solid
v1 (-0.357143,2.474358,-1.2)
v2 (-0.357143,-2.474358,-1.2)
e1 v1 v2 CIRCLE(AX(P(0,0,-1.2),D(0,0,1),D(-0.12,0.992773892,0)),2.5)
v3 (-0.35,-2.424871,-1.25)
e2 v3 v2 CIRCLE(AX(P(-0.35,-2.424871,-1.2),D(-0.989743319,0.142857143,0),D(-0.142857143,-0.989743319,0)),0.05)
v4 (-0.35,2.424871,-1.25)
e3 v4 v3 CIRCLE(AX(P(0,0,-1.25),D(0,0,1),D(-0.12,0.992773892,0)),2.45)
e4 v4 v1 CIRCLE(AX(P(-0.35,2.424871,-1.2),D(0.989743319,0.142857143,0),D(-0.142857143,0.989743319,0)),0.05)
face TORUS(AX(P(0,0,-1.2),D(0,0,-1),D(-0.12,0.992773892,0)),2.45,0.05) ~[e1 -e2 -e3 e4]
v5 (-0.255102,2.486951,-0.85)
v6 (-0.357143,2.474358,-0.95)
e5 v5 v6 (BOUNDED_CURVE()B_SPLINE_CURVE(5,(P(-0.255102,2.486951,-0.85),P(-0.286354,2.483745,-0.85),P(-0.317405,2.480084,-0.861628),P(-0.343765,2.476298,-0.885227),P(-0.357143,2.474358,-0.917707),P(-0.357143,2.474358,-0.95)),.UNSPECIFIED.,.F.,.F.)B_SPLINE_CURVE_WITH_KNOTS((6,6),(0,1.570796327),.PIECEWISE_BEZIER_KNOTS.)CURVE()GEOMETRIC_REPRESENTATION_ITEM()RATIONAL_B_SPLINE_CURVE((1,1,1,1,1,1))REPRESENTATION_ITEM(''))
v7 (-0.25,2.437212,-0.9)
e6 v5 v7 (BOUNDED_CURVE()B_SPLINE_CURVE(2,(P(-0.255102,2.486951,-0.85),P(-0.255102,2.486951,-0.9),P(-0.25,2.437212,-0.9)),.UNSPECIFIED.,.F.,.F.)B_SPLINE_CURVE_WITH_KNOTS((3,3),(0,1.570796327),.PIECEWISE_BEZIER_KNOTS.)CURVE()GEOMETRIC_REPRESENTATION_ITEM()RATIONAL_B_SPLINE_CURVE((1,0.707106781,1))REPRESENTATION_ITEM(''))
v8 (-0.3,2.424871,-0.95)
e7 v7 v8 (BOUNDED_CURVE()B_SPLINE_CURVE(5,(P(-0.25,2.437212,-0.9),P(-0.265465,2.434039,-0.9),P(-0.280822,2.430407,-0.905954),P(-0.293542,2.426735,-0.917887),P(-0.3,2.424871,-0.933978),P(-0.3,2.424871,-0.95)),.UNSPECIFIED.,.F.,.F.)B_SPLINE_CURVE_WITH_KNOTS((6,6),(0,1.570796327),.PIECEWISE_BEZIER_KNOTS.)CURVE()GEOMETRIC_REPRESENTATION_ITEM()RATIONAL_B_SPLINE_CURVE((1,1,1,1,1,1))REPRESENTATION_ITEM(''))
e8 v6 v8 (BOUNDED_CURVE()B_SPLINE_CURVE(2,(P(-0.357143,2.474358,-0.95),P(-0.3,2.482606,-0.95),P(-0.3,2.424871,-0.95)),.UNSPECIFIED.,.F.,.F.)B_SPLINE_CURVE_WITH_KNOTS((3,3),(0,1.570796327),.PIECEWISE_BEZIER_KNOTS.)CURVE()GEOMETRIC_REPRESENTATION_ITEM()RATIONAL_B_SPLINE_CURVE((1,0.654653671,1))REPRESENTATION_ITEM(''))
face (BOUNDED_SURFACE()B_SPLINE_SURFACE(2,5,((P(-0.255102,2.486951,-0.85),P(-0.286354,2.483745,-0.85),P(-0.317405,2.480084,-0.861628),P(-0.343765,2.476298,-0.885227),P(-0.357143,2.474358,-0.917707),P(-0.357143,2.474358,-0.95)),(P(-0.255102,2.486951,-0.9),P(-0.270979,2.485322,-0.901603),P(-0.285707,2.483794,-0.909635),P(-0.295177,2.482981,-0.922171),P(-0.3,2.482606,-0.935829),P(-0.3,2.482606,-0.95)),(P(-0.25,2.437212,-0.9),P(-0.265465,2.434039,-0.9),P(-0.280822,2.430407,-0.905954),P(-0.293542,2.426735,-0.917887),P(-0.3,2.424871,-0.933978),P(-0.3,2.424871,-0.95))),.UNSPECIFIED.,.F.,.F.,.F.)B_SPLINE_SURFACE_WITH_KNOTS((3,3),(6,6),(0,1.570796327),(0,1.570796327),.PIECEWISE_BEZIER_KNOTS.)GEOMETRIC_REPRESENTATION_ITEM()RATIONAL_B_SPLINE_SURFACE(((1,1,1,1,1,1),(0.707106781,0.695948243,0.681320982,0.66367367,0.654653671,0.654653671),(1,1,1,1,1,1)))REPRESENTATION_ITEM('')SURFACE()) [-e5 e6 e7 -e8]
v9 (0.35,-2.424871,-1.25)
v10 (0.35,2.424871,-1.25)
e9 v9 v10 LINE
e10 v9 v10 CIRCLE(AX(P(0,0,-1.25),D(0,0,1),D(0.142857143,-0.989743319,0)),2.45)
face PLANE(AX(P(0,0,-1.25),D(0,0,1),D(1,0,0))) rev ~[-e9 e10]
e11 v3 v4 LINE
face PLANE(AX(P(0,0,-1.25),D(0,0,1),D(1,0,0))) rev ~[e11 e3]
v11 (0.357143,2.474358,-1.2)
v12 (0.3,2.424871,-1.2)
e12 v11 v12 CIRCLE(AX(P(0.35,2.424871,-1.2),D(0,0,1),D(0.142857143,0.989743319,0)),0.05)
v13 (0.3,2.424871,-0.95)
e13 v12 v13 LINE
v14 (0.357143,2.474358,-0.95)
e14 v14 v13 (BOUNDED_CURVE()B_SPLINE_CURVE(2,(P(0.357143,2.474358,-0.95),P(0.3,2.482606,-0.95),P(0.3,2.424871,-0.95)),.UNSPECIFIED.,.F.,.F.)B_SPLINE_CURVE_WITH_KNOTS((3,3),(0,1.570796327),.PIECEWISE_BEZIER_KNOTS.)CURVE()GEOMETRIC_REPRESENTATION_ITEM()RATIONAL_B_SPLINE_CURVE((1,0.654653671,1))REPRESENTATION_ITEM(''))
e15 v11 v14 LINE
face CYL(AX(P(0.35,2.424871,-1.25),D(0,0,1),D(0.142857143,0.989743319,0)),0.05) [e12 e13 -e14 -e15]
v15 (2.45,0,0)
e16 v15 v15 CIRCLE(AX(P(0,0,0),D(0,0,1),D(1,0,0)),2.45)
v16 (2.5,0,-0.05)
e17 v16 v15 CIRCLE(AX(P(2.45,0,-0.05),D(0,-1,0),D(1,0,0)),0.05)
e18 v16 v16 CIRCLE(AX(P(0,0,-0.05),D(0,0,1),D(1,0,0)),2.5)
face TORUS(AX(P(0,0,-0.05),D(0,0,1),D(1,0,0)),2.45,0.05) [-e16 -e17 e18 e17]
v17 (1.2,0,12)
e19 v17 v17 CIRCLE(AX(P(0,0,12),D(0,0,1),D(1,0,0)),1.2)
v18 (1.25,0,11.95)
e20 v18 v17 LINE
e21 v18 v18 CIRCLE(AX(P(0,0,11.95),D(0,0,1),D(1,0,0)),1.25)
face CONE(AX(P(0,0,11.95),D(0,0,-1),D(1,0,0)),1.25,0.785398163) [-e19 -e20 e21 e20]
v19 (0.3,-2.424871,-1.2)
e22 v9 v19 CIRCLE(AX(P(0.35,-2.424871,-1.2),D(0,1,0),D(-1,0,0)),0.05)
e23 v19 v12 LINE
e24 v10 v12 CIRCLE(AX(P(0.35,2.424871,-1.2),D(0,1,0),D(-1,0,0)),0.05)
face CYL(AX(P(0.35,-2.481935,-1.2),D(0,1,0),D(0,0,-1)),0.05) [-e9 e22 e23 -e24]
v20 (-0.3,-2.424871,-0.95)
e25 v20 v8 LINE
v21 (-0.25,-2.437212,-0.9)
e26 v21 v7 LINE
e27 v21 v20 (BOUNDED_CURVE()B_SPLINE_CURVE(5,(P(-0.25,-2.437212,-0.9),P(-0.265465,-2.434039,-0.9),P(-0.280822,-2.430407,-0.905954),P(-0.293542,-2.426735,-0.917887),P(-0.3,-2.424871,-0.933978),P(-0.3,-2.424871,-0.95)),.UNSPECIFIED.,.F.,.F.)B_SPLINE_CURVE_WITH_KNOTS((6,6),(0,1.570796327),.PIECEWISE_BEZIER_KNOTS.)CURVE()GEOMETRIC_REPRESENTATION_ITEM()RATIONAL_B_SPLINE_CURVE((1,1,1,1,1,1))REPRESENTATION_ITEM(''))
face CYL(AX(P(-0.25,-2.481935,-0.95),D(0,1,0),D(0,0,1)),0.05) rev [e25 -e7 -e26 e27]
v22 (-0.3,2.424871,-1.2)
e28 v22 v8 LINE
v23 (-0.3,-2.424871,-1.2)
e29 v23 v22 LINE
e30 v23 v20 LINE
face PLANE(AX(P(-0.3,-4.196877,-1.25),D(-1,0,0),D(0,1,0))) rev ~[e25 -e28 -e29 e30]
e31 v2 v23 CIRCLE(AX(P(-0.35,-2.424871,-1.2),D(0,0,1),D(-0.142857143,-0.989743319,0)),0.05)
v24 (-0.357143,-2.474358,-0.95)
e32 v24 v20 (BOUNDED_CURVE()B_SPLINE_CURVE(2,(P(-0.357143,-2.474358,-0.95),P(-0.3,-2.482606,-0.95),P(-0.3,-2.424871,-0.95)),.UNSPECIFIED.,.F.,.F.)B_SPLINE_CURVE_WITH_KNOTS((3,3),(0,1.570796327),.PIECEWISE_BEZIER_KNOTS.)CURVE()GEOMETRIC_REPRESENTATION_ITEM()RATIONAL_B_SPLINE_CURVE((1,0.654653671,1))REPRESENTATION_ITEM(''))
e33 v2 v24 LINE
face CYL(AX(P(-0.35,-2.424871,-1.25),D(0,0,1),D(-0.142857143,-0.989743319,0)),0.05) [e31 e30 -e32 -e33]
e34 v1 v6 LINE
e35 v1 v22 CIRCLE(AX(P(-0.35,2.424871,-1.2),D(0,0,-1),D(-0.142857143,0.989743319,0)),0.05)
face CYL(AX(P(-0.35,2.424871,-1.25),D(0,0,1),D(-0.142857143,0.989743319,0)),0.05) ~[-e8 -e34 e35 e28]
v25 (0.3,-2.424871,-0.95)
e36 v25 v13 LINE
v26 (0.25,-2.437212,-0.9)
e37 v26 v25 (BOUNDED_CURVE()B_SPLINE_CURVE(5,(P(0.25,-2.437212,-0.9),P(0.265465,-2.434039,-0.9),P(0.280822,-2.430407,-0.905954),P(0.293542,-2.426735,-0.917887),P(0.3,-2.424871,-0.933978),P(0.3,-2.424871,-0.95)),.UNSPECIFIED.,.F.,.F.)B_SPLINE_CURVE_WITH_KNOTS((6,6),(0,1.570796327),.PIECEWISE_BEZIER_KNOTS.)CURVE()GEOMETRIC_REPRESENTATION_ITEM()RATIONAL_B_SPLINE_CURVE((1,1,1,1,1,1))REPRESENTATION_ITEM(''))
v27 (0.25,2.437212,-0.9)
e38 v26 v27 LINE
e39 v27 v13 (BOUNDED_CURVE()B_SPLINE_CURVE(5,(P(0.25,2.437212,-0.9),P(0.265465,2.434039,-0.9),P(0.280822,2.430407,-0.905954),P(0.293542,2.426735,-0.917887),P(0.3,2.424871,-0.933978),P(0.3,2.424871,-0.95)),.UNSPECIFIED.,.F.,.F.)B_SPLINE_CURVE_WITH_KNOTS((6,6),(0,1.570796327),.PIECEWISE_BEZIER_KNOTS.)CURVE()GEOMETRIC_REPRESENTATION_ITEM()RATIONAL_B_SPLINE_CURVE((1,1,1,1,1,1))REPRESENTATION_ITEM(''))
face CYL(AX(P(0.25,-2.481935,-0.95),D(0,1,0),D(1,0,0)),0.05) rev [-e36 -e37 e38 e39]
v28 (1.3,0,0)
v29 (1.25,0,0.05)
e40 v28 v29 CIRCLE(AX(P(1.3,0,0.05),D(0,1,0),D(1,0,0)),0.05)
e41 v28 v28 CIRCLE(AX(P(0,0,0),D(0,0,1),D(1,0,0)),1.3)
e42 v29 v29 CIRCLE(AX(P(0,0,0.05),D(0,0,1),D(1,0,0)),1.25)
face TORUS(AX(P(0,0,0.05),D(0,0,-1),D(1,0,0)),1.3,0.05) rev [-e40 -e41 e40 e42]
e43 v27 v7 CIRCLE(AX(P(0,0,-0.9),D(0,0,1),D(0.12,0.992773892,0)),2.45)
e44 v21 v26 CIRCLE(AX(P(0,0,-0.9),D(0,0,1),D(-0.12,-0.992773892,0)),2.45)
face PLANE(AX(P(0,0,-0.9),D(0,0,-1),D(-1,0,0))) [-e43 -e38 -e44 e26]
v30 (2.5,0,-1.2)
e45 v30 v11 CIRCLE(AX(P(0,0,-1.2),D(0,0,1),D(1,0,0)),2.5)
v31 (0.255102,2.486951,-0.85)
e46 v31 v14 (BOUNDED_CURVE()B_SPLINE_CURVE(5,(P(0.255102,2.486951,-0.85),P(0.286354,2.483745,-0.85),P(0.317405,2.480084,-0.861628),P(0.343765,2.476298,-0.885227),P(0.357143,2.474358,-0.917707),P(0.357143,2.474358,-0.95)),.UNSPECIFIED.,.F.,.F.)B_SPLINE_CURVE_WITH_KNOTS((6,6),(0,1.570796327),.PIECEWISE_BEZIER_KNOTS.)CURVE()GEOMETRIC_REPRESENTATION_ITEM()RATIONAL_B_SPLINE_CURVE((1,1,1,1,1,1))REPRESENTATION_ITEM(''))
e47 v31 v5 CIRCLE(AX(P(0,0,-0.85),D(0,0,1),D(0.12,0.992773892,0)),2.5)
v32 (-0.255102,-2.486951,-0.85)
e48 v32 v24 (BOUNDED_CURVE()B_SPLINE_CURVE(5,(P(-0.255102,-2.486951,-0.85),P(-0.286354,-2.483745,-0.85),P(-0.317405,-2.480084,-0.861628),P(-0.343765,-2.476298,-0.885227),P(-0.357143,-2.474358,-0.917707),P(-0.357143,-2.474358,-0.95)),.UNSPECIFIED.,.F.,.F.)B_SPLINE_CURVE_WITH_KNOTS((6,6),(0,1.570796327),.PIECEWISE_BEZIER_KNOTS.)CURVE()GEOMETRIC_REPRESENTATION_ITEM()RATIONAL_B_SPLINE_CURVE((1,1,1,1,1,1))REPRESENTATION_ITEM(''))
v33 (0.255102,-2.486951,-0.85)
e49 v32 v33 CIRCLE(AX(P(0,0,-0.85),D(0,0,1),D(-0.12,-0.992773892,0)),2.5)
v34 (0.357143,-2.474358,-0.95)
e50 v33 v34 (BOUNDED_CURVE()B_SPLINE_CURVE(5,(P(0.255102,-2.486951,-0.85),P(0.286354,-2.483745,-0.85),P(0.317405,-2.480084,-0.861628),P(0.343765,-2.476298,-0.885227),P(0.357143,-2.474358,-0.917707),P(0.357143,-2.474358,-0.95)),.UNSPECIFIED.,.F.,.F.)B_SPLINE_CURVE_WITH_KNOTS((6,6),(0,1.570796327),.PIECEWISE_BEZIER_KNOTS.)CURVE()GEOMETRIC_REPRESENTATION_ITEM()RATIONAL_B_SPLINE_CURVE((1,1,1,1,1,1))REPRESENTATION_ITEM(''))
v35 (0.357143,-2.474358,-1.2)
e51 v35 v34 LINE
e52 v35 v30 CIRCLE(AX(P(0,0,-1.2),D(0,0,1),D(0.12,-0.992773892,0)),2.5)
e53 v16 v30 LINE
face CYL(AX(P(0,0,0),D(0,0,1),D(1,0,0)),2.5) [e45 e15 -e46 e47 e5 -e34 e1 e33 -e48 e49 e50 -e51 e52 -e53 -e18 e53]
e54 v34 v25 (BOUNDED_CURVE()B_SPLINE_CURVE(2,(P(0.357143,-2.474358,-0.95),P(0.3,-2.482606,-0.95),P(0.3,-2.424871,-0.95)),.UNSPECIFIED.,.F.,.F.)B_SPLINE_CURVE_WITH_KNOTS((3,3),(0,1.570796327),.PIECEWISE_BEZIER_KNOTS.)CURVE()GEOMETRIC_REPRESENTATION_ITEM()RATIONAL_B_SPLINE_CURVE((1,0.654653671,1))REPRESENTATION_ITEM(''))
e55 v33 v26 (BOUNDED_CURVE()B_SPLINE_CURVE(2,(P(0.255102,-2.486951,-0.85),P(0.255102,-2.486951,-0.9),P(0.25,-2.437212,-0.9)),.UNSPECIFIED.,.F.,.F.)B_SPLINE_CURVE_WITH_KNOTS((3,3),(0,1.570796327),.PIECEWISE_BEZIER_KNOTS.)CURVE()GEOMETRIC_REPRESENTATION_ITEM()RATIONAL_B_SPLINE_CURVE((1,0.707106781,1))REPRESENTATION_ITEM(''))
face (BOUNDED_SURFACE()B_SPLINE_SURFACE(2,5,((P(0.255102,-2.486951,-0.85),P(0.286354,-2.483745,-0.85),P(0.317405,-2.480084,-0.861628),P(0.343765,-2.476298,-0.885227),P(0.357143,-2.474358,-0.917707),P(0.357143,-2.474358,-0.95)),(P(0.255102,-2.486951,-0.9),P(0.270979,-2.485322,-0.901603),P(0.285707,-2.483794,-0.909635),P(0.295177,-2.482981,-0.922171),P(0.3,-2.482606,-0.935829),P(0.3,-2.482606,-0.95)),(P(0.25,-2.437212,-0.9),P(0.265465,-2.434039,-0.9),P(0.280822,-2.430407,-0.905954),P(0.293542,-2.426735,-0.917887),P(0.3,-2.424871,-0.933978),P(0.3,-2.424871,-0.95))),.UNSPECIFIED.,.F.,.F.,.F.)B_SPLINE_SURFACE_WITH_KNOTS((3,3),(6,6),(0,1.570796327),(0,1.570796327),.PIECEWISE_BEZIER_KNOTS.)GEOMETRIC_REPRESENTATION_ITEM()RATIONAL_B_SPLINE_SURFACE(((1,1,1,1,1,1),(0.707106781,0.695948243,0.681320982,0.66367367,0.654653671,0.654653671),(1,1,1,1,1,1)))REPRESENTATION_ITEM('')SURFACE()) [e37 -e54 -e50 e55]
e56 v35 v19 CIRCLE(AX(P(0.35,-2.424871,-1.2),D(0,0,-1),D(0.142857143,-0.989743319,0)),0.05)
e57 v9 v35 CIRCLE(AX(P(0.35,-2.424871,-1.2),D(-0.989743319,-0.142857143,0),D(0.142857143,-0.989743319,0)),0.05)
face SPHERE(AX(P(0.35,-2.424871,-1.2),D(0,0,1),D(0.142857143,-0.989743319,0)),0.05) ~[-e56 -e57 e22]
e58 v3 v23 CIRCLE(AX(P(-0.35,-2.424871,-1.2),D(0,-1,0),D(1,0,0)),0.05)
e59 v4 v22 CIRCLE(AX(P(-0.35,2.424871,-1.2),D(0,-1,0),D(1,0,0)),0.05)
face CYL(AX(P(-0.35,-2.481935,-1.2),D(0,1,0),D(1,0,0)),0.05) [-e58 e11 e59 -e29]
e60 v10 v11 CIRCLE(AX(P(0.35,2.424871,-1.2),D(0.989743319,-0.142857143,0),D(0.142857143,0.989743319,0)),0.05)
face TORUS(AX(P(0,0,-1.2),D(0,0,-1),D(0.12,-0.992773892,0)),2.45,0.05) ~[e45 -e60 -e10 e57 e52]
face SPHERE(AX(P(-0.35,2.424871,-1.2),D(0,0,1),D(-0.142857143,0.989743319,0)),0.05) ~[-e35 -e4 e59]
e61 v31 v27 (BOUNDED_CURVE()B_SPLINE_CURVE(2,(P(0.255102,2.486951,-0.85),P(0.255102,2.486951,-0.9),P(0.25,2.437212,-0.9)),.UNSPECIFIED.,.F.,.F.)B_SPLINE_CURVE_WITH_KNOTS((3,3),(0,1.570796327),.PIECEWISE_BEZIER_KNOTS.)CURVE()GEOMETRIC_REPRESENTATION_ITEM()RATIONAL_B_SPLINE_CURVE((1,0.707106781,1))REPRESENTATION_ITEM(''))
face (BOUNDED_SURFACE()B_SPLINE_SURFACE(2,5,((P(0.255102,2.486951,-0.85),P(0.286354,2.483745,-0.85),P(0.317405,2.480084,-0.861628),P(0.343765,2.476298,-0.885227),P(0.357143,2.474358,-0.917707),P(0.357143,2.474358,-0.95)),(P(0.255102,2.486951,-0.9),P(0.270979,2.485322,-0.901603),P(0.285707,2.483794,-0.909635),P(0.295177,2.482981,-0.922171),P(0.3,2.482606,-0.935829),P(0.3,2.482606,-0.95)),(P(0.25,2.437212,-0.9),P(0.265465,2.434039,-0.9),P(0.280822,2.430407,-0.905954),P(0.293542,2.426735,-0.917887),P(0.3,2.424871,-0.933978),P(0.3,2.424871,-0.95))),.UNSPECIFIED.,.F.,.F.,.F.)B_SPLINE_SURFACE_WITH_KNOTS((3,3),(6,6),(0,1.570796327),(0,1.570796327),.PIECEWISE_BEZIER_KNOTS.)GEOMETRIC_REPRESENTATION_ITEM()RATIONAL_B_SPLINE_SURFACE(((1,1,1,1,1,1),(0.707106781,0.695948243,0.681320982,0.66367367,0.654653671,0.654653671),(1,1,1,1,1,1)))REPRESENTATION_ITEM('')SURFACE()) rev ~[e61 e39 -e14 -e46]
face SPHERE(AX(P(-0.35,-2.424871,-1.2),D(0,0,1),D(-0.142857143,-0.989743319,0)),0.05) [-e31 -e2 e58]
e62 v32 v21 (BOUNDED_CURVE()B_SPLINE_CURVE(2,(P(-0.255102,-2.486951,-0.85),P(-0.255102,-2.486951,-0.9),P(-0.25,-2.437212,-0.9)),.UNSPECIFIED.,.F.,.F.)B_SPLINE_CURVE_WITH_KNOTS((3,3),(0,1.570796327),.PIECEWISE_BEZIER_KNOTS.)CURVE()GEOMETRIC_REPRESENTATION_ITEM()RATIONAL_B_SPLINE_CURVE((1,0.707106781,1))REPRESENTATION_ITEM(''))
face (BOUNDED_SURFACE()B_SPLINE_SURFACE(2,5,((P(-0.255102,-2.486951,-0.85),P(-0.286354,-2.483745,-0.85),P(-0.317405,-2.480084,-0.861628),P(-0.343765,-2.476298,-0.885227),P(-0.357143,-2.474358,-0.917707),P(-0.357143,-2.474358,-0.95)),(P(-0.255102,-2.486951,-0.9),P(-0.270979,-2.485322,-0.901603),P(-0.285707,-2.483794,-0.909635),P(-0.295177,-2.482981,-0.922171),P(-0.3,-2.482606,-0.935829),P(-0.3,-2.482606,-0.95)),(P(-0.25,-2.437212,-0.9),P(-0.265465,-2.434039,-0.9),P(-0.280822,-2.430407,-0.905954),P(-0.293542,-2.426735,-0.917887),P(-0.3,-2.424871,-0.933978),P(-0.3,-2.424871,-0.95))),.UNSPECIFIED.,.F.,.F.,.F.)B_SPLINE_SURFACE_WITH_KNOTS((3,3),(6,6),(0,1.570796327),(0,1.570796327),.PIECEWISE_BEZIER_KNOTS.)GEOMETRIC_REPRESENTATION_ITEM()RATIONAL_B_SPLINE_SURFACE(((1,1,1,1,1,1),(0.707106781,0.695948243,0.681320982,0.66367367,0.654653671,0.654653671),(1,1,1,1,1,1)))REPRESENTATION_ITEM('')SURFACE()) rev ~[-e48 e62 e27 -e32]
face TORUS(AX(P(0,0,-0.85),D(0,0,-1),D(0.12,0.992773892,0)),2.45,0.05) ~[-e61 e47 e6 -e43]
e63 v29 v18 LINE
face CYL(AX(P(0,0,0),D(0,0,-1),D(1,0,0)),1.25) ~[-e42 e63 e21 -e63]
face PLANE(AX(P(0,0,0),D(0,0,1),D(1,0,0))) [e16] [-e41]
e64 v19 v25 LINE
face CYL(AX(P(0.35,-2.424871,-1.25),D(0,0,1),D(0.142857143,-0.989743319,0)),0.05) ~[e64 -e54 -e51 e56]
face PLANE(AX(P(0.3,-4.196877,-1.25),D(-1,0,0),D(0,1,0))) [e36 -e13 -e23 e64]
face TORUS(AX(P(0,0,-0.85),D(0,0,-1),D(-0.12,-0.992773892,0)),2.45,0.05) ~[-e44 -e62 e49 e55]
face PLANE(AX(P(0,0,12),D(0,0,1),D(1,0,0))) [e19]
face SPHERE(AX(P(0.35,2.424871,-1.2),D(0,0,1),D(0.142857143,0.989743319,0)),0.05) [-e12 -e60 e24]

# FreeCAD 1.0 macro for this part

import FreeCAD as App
import Part
import Sketcher
Q = App.Units.Quantity


def edges_at(feature, points):
    """Names of the edges that pass closest to the given points."""
    edges = feature.Shape.Edges
    near = lambda p: min(range(len(edges)), key=lambda i: edges[i].distToShape(Part.Vertex(*p))[0])
    return sorted({f"Edge{near(p) + 1}" for p in points})

doc = App.newDocument("Part")
params = doc.addObject("Spreadsheet::Sheet", "Params")
for row, (alias, value) in enumerate([
    ("sketch1_diameter", "2.5 mm"),
    ("pad1_length", "12 mm"),
    ("sketch2_diameter", "5 mm"),
    ("pad2_length", "1.25 mm"),
    ("sketch3_width", "0.6 mm"),
    ("pocket1_length", "0.35 mm"),
    ("fillet_radius", "0.05 mm"),
    ("fillet2_radius", "0.05 mm"),
    ("chamfer_size", "0.05 mm"),
], start=1):
    params.set(f"A{row}", alias)
    params.set(f"B{row}", "=" + value)
    params.setAlias(f"B{row}", alias)

body = doc.addObject("PartDesign::Body", "Body")

# Sketch on XY plane
sketch1 = body.newObject("Sketcher::SketchObject", "Sketch")
sketch1.AttachmentSupport = (doc.getObject("XY_Plane"), [""])
sketch1.MapMode = "FlatFace"
sketch1.addGeometry(Part.Circle(App.Vector(0, 0, 0), App.Vector(0, 0, 1), 1.2), False)
sketch1.addConstraint(Sketcher.Constraint("Coincident", 0, 3, -1, 1))
sketch1.addConstraint(Sketcher.Constraint("Diameter", 0, Q("2.5 mm")))
sketch1.setExpression("Constraints[1]", "Params.sketch1_diameter")
pad1 = body.newObject("PartDesign::Pad", "Pad")
pad1.Profile = sketch1
pad1.setExpression("Length", "Params.pad1_length")

# Sketch on XY plane
sketch2 = body.newObject("Sketcher::SketchObject", "Sketch001")
sketch2.AttachmentSupport = (doc.getObject("XY_Plane"), [""])
sketch2.MapMode = "FlatFace"
sketch2.addGeometry(Part.Circle(App.Vector(0, 0, 0), App.Vector(0, 0, 1), 2.5), False)
sketch2.addConstraint(Sketcher.Constraint("Coincident", 0, 3, -1, 1))
sketch2.addConstraint(Sketcher.Constraint("Diameter", 0, Q("5 mm")))
sketch2.setExpression("Constraints[1]", "Params.sketch2_diameter")
pad2 = body.newObject("PartDesign::Pad", "Pad001")
pad2.Profile = sketch2
pad2.setExpression("Length", "Params.pad2_length")
pad2.Reversed = True

# Sketch on XY plane
sketch3 = body.newObject("Sketcher::SketchObject", "Sketch002")
sketch3.AttachmentSupport = (doc.getObject("XY_Plane"), [""])
sketch3.MapMode = "FlatFace"
sketch3.AttachmentOffset = App.Placement(App.Vector(0, 0, -1.25), App.Rotation())
sketch3.addGeometry(Part.LineSegment(App.Vector(0.3, 4.2, 0), App.Vector(0.3, -4.2, 0)), False)
sketch3.addGeometry(Part.LineSegment(App.Vector(0.3, -4.2, 0), App.Vector(-0.3, -4.2, 0)), False)
sketch3.addGeometry(Part.LineSegment(App.Vector(-0.3, -4.2, 0), App.Vector(-0.3, 4.2, 0)), False)
sketch3.addGeometry(Part.LineSegment(App.Vector(-0.3, 4.2, 0), App.Vector(0.3, 4.2, 0)), False)
sketch3.addConstraint(Sketcher.Constraint("Coincident", 0, 2, 1, 1))
sketch3.addConstraint(Sketcher.Constraint("Coincident", 1, 2, 2, 1))
sketch3.addConstraint(Sketcher.Constraint("Coincident", 2, 2, 3, 1))
sketch3.addConstraint(Sketcher.Constraint("Coincident", 3, 2, 0, 1))
sketch3.addConstraint(Sketcher.Constraint("Vertical", 0))
sketch3.addConstraint(Sketcher.Constraint("Horizontal", 1))
sketch3.addConstraint(Sketcher.Constraint("Vertical", 2))
sketch3.addConstraint(Sketcher.Constraint("Horizontal", 3))
sketch3.addConstraint(Sketcher.Constraint("Symmetric", 0, 2, 2, 2, -1, 1))
sketch3.addConstraint(Sketcher.Constraint("DistanceX", 1, 2, 1, 1, Q("0.6 mm")))
sketch3.addConstraint(Sketcher.Constraint("DistanceY", 0, 2, 0, 1, Q("8.393754 mm")))
sketch3.setExpression("Constraints[9]", "Params.sketch3_width")
pocket1 = body.newObject("PartDesign::Pocket", "Pocket")
pocket1.Profile = sketch3
pocket1.setExpression("Length", "Params.pocket1_length")
pocket1.Reversed = True
doc.recompute()

fillet = body.newObject("PartDesign::Fillet", "Fillet")
fillet.Base = (pocket1, edges_at(pocket1, [
    (-2.5, 0, -1.25),
    (1.871, -1.658, -1.25),
    (0.3, 0, -1.25),
    (-0.3, 0, -1.25),
    (0, 2.5, -0.9),
    (0, -2.5, -0.9),
    (-0.3, -2.482, -1.075),
    (-0.3, 2.482, -1.075),
    (0.3, 2.482, -1.075),
    (0.3, -2.482, -1.075),
    (-0.3, 0, -0.9),
    (0.3, 0, -0.9),
    (-1.25, 0, 0),
]))
fillet.setExpression("Radius", "Params.fillet_radius")
doc.recompute()

fillet2 = body.newObject("PartDesign::Fillet", "Fillet001")
fillet2.Base = (fillet, edges_at(fillet, [(-2.5, 0, 0)]))
fillet2.setExpression("Radius", "Params.fillet2_radius")
doc.recompute()

chamfer = body.newObject("PartDesign::Chamfer", "Chamfer")
chamfer.Base = (fillet2, edges_at(fillet2, [(-1.25, 0, 12)]))
chamfer.setExpression("Size", "Params.chamfer_size")

doc.recompute()
